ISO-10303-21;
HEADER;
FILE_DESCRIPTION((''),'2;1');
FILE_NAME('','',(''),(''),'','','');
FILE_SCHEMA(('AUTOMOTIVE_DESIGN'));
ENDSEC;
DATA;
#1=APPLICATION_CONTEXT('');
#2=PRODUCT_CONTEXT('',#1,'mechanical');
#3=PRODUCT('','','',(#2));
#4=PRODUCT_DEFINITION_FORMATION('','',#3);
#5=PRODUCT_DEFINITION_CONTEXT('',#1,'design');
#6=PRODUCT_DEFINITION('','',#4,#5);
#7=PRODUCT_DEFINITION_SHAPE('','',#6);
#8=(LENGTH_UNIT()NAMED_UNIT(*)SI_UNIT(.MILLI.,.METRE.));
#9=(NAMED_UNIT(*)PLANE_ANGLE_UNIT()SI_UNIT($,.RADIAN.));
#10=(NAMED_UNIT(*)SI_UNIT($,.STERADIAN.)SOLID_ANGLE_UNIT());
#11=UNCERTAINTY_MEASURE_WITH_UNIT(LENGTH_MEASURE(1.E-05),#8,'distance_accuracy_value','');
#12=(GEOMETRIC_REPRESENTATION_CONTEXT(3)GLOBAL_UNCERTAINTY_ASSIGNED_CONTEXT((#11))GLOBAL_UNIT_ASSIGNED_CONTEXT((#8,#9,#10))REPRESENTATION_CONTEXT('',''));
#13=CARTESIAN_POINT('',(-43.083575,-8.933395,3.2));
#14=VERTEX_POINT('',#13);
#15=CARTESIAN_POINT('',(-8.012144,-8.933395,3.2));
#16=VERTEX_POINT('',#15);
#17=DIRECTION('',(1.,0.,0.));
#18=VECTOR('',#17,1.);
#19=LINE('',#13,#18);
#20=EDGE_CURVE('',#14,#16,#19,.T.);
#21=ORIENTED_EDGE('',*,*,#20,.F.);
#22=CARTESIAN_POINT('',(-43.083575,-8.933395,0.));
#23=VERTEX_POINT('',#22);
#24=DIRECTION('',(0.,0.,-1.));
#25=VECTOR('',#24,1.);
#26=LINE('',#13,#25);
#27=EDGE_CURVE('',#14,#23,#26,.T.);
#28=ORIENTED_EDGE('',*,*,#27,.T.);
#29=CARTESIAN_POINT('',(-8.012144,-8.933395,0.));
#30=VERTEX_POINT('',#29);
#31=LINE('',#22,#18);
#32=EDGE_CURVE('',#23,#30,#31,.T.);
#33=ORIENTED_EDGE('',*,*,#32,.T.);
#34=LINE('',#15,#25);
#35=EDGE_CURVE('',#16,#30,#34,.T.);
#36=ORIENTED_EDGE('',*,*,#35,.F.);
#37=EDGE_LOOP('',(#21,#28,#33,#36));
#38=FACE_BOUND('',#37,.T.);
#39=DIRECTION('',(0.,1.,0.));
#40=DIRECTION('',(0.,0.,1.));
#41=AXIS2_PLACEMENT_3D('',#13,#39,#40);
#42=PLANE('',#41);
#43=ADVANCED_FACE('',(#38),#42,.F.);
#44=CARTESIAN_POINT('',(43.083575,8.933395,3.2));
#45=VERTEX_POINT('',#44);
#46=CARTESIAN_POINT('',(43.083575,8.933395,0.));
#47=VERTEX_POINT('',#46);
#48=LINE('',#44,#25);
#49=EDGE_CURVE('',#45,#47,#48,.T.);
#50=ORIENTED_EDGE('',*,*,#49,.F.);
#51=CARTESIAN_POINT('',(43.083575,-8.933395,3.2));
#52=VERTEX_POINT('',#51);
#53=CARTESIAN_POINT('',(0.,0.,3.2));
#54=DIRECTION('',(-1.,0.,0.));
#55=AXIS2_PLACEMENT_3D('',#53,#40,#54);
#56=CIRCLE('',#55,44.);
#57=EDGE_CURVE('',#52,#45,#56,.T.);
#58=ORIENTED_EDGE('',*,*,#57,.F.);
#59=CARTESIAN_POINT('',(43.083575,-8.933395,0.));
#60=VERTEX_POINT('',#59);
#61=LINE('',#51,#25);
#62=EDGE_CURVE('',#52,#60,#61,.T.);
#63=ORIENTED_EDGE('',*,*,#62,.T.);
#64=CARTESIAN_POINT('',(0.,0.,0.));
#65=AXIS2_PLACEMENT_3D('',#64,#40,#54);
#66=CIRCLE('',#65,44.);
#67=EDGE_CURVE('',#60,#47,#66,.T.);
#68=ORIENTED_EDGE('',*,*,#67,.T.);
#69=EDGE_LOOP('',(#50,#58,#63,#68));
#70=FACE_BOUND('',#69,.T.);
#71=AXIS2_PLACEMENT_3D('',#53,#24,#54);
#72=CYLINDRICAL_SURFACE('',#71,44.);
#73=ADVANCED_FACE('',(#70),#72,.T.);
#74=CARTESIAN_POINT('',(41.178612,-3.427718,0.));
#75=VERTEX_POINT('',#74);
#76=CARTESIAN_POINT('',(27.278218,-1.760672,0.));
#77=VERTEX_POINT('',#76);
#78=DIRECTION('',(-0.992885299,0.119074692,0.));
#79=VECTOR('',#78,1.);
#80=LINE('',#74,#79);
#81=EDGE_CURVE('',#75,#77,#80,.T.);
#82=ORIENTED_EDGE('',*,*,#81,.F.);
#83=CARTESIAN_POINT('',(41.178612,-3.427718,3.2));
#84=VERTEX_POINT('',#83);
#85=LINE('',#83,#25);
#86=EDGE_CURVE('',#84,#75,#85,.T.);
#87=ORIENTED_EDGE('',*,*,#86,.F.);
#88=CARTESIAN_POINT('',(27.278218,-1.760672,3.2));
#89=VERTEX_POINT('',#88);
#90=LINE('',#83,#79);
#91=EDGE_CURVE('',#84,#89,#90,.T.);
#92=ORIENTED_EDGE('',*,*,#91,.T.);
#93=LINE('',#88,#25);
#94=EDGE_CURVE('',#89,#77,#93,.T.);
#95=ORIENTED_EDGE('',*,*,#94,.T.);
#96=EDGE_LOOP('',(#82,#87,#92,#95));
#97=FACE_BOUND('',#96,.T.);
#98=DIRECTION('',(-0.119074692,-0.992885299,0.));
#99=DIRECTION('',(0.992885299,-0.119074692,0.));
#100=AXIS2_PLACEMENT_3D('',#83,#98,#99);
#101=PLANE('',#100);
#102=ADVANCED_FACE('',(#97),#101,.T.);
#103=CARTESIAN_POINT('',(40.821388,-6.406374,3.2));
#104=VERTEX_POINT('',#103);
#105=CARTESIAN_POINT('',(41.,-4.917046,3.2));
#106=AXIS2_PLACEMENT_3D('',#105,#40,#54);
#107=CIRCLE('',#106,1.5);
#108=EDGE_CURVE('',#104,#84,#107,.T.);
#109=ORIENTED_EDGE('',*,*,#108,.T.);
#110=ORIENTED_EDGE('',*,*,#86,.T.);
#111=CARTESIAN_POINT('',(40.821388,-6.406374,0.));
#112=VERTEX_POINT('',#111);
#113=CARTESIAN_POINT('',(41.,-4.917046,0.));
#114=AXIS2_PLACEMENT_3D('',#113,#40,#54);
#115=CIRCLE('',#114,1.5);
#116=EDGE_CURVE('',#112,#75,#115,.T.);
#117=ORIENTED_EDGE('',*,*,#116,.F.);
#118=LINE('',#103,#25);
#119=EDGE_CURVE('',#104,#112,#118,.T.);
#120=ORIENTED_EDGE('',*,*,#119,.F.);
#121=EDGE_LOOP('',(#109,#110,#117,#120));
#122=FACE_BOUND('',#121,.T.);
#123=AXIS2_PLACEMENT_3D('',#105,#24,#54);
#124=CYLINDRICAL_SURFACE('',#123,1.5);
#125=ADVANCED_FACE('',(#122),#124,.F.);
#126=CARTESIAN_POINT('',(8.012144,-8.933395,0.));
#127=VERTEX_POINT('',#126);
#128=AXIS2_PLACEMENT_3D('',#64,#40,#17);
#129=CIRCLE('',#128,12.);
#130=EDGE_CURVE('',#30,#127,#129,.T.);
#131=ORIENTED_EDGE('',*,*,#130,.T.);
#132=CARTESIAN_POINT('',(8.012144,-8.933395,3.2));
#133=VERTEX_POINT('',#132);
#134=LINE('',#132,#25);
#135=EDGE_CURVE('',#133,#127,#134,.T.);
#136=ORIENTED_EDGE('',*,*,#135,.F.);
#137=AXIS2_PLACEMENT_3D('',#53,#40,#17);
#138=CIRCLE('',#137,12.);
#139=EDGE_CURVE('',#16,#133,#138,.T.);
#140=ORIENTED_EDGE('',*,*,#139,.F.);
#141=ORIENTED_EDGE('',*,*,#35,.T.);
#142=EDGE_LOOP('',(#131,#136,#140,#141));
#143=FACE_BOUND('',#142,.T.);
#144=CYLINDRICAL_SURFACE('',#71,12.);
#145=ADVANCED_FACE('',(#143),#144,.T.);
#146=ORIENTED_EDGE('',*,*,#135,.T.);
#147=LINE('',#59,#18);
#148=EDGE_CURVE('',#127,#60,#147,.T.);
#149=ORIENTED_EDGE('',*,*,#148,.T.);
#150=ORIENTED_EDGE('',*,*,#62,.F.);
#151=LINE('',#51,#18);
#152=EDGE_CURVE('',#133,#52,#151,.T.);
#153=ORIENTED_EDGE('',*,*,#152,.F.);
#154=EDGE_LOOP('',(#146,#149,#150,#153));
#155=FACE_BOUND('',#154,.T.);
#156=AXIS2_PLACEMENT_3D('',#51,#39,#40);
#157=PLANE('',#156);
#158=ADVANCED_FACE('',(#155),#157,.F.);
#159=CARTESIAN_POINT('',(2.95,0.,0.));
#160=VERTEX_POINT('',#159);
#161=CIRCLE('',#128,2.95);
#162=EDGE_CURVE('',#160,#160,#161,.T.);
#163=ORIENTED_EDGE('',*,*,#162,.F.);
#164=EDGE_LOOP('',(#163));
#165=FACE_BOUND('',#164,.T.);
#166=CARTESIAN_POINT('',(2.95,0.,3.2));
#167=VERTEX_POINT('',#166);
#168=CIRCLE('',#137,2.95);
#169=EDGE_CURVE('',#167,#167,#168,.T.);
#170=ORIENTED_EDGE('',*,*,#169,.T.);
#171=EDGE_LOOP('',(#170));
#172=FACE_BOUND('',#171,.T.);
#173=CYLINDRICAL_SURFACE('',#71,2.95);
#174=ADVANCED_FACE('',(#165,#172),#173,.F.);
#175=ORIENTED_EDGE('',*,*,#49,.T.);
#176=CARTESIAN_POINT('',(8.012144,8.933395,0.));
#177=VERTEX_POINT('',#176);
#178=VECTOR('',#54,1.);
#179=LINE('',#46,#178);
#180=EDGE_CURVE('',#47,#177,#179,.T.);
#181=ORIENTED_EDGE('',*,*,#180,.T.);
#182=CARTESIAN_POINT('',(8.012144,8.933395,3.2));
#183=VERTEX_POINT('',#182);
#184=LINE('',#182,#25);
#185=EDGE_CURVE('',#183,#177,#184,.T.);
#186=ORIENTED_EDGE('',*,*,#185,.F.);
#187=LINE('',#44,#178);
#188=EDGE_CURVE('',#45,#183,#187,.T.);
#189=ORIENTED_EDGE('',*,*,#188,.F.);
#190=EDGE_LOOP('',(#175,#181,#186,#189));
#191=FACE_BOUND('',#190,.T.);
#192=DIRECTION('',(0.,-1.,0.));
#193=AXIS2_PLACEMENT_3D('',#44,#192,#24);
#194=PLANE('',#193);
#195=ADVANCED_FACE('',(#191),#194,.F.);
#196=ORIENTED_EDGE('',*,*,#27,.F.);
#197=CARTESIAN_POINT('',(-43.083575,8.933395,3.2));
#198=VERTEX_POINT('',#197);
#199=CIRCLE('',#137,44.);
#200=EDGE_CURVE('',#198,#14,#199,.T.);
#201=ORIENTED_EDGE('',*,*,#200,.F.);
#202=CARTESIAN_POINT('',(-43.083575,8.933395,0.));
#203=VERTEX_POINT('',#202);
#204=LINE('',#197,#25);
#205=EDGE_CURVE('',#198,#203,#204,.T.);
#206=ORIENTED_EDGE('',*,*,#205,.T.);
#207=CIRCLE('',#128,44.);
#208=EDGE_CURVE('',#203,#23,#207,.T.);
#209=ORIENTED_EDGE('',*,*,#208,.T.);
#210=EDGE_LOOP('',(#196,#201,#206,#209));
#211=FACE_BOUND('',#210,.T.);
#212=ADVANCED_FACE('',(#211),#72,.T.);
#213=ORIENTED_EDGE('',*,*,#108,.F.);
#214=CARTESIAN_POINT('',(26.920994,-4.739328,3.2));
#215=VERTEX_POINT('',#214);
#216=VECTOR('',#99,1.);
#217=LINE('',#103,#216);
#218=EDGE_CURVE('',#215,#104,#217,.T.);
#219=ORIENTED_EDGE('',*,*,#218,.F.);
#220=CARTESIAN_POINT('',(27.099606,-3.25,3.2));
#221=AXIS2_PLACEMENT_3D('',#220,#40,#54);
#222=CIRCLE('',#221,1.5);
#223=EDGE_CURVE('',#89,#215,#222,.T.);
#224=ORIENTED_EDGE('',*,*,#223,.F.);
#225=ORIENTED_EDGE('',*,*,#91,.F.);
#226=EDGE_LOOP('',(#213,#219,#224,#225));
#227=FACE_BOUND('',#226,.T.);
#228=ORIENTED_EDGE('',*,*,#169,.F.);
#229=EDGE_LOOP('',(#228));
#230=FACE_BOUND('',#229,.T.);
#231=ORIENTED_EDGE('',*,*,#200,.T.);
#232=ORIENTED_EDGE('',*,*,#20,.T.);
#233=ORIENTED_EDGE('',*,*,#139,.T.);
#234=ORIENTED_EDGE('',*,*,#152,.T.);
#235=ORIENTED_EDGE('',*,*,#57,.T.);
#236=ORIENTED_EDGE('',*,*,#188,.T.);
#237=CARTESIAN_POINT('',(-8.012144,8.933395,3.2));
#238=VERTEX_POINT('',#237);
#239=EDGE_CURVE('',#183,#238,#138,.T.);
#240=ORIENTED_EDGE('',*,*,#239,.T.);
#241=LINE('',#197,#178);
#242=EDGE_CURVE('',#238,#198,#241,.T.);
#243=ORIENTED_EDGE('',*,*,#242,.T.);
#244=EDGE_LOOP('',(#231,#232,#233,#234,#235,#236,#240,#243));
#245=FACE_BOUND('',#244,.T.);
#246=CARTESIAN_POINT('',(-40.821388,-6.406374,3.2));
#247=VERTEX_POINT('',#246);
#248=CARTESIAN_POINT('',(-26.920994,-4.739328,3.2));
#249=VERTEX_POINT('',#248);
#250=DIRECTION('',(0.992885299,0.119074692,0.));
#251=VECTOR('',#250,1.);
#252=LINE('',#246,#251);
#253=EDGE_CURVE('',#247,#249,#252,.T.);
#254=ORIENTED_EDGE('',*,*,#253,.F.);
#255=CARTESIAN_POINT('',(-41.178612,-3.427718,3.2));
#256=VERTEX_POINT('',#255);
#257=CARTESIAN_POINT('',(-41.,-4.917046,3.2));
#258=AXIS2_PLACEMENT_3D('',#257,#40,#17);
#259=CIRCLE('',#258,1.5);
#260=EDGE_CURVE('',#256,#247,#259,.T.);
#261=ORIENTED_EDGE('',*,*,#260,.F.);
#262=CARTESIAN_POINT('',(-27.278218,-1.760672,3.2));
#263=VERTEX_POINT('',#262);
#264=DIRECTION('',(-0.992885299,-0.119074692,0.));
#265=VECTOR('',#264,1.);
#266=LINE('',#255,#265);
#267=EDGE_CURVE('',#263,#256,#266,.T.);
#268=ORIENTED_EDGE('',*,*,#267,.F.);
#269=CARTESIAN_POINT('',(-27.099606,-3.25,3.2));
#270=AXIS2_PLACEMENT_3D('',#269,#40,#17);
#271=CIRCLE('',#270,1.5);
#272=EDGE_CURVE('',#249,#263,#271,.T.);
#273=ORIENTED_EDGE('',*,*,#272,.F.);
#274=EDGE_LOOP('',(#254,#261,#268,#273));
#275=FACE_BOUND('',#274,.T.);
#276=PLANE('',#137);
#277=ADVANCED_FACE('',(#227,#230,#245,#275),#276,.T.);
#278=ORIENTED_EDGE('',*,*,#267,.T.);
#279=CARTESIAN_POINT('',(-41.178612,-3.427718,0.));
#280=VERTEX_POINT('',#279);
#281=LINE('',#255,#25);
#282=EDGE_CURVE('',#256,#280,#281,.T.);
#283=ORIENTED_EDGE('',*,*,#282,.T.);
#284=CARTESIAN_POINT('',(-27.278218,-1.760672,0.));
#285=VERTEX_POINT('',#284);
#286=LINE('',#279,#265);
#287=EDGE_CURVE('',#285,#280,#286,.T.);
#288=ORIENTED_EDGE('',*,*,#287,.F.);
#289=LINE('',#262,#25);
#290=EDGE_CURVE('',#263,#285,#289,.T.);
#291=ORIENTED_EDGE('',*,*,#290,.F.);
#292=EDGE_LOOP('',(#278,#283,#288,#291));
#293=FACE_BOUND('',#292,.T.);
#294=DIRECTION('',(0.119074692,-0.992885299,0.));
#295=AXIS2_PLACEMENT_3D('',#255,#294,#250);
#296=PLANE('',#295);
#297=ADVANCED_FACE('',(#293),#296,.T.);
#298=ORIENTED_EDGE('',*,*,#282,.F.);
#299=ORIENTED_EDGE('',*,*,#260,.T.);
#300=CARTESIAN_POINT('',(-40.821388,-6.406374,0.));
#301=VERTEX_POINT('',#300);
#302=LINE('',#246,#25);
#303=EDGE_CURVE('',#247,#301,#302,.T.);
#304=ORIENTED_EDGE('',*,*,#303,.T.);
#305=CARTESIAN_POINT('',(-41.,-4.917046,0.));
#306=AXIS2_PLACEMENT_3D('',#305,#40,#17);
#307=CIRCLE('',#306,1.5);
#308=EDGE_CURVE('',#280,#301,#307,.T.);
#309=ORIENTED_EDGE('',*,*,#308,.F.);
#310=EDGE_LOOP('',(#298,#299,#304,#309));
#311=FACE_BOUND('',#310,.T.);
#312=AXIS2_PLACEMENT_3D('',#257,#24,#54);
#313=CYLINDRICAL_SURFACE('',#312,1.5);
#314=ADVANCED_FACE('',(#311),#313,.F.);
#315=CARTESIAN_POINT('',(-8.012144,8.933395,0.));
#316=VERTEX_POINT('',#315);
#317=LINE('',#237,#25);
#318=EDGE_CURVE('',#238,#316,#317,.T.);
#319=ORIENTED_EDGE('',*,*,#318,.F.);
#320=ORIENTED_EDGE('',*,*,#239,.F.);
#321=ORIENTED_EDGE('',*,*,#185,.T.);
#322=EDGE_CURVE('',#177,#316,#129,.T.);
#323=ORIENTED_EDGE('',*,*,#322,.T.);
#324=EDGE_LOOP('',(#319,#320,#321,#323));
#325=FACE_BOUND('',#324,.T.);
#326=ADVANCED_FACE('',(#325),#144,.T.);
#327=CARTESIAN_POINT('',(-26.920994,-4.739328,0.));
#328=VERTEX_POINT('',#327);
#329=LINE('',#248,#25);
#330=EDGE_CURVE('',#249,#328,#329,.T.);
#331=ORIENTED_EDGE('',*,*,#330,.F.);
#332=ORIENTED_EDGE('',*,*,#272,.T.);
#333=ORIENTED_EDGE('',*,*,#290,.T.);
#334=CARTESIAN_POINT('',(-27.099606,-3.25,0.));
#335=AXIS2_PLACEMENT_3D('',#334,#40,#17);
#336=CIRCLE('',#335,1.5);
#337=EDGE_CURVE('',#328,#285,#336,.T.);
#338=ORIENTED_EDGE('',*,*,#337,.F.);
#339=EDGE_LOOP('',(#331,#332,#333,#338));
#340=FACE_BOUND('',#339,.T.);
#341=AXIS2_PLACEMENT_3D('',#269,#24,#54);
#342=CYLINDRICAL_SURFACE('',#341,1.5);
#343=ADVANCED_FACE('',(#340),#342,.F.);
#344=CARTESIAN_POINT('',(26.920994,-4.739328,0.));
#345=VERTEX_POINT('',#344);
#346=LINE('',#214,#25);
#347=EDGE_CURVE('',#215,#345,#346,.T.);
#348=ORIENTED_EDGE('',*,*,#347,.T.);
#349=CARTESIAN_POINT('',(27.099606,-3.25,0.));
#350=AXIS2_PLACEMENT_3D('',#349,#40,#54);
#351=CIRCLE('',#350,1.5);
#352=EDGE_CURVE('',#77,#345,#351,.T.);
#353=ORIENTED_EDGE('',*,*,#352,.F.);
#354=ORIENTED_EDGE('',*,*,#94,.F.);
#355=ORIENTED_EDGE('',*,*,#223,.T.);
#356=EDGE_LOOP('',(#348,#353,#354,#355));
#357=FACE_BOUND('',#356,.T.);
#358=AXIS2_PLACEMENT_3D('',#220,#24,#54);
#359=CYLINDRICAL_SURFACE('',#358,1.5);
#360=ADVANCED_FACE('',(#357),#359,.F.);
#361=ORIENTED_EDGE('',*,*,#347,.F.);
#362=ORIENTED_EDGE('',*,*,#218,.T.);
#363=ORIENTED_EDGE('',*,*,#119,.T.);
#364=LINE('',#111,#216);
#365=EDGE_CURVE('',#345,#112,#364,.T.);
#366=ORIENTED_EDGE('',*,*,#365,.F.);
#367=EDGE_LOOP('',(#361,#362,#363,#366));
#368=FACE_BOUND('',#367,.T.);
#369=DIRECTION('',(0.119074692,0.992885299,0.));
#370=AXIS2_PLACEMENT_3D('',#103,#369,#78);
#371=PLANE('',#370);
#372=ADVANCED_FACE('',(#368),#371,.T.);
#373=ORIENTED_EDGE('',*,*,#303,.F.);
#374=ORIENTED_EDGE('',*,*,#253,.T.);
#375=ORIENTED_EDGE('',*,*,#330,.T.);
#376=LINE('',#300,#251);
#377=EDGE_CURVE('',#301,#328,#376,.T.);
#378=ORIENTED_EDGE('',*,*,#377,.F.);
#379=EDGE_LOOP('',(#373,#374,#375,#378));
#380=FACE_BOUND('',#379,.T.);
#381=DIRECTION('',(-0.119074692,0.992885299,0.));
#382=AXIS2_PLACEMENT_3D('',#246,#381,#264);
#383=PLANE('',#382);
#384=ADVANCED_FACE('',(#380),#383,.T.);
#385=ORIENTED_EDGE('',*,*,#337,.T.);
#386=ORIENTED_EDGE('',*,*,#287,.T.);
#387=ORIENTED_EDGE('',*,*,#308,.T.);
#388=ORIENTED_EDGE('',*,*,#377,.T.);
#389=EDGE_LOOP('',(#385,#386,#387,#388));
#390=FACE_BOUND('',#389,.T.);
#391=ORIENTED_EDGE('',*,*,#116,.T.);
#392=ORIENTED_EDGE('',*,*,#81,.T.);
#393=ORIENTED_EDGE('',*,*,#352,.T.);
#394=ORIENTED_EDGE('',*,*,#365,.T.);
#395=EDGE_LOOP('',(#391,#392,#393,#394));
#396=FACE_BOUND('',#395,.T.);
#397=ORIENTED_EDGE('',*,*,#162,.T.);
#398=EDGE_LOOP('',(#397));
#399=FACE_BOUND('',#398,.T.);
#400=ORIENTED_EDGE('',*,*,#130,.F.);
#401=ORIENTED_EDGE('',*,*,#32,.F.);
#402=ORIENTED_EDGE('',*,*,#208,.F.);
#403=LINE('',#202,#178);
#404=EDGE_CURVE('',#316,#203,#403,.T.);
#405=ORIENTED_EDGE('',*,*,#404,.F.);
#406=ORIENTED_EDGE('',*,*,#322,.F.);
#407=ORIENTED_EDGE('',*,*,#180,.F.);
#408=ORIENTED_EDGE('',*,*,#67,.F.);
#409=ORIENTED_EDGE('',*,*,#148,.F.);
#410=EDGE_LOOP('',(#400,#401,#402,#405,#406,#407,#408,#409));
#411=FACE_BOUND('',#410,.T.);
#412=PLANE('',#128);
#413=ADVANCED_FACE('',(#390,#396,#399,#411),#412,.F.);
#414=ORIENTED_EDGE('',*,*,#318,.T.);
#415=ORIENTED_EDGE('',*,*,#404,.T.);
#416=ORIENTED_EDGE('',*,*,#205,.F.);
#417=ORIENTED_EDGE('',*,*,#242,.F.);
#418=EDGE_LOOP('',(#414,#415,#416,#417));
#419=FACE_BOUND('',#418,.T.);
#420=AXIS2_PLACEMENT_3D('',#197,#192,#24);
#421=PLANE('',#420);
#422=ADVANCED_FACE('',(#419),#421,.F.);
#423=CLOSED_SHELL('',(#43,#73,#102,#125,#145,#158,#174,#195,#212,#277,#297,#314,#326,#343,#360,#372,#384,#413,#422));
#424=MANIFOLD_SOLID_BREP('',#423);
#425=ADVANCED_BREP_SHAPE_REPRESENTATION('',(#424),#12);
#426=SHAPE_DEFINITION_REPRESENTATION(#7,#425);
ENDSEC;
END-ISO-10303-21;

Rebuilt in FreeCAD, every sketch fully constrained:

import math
import FreeCAD as App
import Part
import Sketcher

doc = App.newDocument("Part")
params = doc.addObject("Spreadsheet::Sheet", "Params")
for row, (alias, value) in enumerate([
    ("sketch1_radius", "44 mm"),
    ("sketch1_radius2", "12 mm"),
    ("sketch1_diameter", "5.9 mm"),
    ("sketch1_radius3", "1.5 mm"),
    ("sketch1_length", "14 mm"),
    ("pad1_length", "3.2 mm"),
], start=1):
    params.set(f"A{row}", alias)
    params.set(f"B{row}", "=" + value)
    params.setAlias(f"B{row}", alias)

body = doc.addObject("PartDesign::Body", "Body")

# Sketch on XY plane
sketch1 = doc.addObject("Sketcher::SketchObject", "Sketch")
body.addObject(sketch1)
sketch1.AttachmentSupport = (doc.XY_Plane, [""])
sketch1.MapMode = "FlatFace"
sketch1.addGeometry(Part.LineSegment(App.Vector(-8, 8.9, 0), App.Vector(-43.1, 8.9, 0)), False)
sketch1.addGeometry(Part.ArcOfCircle(Part.Circle(App.Vector(0, 0, 0), App.Vector(0, 0, 1), 44), math.radians(168), math.radians(192)), False)
sketch1.addGeometry(Part.LineSegment(App.Vector(-43.1, -8.9, 0), App.Vector(-8, -8.9, 0)), False)
sketch1.addGeometry(Part.ArcOfCircle(Part.Circle(App.Vector(0, 0, 0), App.Vector(0, 0, 1), 12), math.radians(-132), math.radians(-48)), False)
sketch1.addGeometry(Part.LineSegment(App.Vector(8, -8.9, 0), App.Vector(43.1, -8.9, 0)), False)
sketch1.addGeometry(Part.ArcOfCircle(Part.Circle(App.Vector(0, 0, 0), App.Vector(0, 0, 1), 44), math.radians(-12), math.radians(12)), False)
sketch1.addGeometry(Part.LineSegment(App.Vector(43.1, 8.9, 0), App.Vector(8, 8.9, 0)), False)
sketch1.addGeometry(Part.ArcOfCircle(Part.Circle(App.Vector(0, 0, 0), App.Vector(0, 0, 1), 12), math.radians(48), math.radians(132)), False)
sketch1.addGeometry(Part.LineSegment(App.Vector(40.8, -6.4, 0), App.Vector(26.9, -4.7, 0)), False)
sketch1.addGeometry(Part.ArcOfCircle(Part.Circle(App.Vector(27.1, -3.2, 0), App.Vector(0, 0, 1), 1.5), math.radians(83), math.radians(263)), False)
sketch1.addGeometry(Part.LineSegment(App.Vector(27.3, -1.8, 0), App.Vector(41.2, -3.4, 0)), False)
sketch1.addGeometry(Part.ArcOfCircle(Part.Circle(App.Vector(41, -4.9, 0), App.Vector(0, 0, 1), 1.5), math.radians(-97), math.radians(83)), False)
sketch1.addGeometry(Part.LineSegment(App.Vector(-41.2, -3.4, 0), App.Vector(-27.3, -1.8, 0)), False)
sketch1.addGeometry(Part.ArcOfCircle(Part.Circle(App.Vector(-27.1, -3.2, 0), App.Vector(0, 0, 1), 1.5), math.radians(-83), math.radians(97)), False)
sketch1.addGeometry(Part.LineSegment(App.Vector(-26.9, -4.7, 0), App.Vector(-40.8, -6.4, 0)), False)
sketch1.addGeometry(Part.ArcOfCircle(Part.Circle(App.Vector(-41, -4.9, 0), App.Vector(0, 0, 1), 1.5), math.radians(97), math.radians(277)), False)
sketch1.addGeometry(Part.Circle(App.Vector(0, 0, 0), App.Vector(0, 0, 1), 3), False)
sketch1.addConstraint(Sketcher.Constraint("Coincident", 0, 2, 1, 1))
sketch1.addConstraint(Sketcher.Constraint("Coincident", 1, 2, 2, 1))
sketch1.addConstraint(Sketcher.Constraint("Coincident", 2, 2, 3, 1))
sketch1.addConstraint(Sketcher.Constraint("Coincident", 3, 2, 4, 1))
sketch1.addConstraint(Sketcher.Constraint("Coincident", 4, 2, 5, 1))
sketch1.addConstraint(Sketcher.Constraint("Coincident", 5, 2, 6, 1))
sketch1.addConstraint(Sketcher.Constraint("Coincident", 6, 2, 7, 1))
sketch1.addConstraint(Sketcher.Constraint("Coincident", 7, 2, 0, 1))
sketch1.addConstraint(Sketcher.Constraint("Tangent", 8, 2, 9, 2))
sketch1.addConstraint(Sketcher.Constraint("Tangent", 9, 1, 10, 1))
sketch1.addConstraint(Sketcher.Constraint("Tangent", 10, 2, 11, 2))
sketch1.addConstraint(Sketcher.Constraint("Tangent", 11, 1, 8, 1))
sketch1.addConstraint(Sketcher.Constraint("Tangent", 12, 2, 13, 2))
sketch1.addConstraint(Sketcher.Constraint("Tangent", 13, 1, 14, 1))
sketch1.addConstraint(Sketcher.Constraint("Tangent", 14, 2, 15, 2))
sketch1.addConstraint(Sketcher.Constraint("Tangent", 15, 1, 12, 1))
sketch1.addConstraint(Sketcher.Constraint("Horizontal", 0))
sketch1.addConstraint(Sketcher.Constraint("Horizontal", 2))
sketch1.addConstraint(Sketcher.Constraint("Horizontal", 4))
sketch1.addConstraint(Sketcher.Constraint("Horizontal", 6))
sketch1.addConstraint(Sketcher.Constraint("Coincident", 1, 3, -1, 1))
sketch1.addConstraint(Sketcher.Constraint("Coincident", 3, 3, -1, 1))
sketch1.addConstraint(Sketcher.Constraint("Coincident", 5, 3, -1, 1))
sketch1.addConstraint(Sketcher.Constraint("Coincident", 7, 3, -1, 1))
sketch1.addConstraint(Sketcher.Constraint("Coincident", 16, 3, -1, 1))
sketch1.addConstraint(Sketcher.Constraint("Equal", 1, 5))
sketch1.addConstraint(Sketcher.Constraint("Equal", 3, 7))
sketch1.addConstraint(Sketcher.Constraint("Equal", 9, 11))
sketch1.addConstraint(Sketcher.Constraint("Equal", 11, 13))
sketch1.addConstraint(Sketcher.Constraint("Equal", 13, 15))
sketch1.addConstraint(Sketcher.Constraint("Symmetric", 9, 3, 13, 3, -2))
sketch1.addConstraint(Sketcher.Constraint("Symmetric", 11, 3, 15, 3, -2))
sketch1.addConstraint(Sketcher.Constraint("Horizontal", 2, 2, 3, 2))
sketch1.addConstraint(Sketcher.Constraint("Horizontal", 0, 2, 5, 2))
sketch1.addConstraint(Sketcher.Constraint("Vertical", 0, 2, 1, 2))
sketch1.addConstraint(Sketcher.Constraint("Radius", 1, 44.0))
sketch1.addConstraint(Sketcher.Constraint("Radius", 3, 12.0))
sketch1.addConstraint(Sketcher.Constraint("Diameter", 16, 5.9))
sketch1.addConstraint(Sketcher.Constraint("Radius", 9, 1.5))
sketch1.addConstraint(Sketcher.Constraint("Distance", 8, 14.0))
sketch1.addConstraint(Sketcher.Constraint("DistanceX", -1, 1, 11, 3, 41.0))
sketch1.addConstraint(Sketcher.Constraint("DistanceY", 9, 3, -1, 1, 3.25))
sketch1.addConstraint(Sketcher.Constraint("DistanceX", 0, 2, 0, 1, 35.071431))
sketch1.addConstraint(Sketcher.Constraint("DistanceY", 14, 2, 12, 2, 4.645702))
sketch1.setExpression("Constraints[35]", "Params.sketch1_radius")
sketch1.setExpression("Constraints[36]", "Params.sketch1_radius2")
sketch1.setExpression("Constraints[37]", "Params.sketch1_diameter")
sketch1.setExpression("Constraints[38]", "Params.sketch1_radius3")
sketch1.setExpression("Constraints[39]", "Params.sketch1_length")
pad1 = doc.addObject("PartDesign::Pad", "Pad")
body.addObject(pad1)
pad1.Profile = sketch1
pad1.setExpression("Length", "Params.pad1_length")

doc.recompute()
